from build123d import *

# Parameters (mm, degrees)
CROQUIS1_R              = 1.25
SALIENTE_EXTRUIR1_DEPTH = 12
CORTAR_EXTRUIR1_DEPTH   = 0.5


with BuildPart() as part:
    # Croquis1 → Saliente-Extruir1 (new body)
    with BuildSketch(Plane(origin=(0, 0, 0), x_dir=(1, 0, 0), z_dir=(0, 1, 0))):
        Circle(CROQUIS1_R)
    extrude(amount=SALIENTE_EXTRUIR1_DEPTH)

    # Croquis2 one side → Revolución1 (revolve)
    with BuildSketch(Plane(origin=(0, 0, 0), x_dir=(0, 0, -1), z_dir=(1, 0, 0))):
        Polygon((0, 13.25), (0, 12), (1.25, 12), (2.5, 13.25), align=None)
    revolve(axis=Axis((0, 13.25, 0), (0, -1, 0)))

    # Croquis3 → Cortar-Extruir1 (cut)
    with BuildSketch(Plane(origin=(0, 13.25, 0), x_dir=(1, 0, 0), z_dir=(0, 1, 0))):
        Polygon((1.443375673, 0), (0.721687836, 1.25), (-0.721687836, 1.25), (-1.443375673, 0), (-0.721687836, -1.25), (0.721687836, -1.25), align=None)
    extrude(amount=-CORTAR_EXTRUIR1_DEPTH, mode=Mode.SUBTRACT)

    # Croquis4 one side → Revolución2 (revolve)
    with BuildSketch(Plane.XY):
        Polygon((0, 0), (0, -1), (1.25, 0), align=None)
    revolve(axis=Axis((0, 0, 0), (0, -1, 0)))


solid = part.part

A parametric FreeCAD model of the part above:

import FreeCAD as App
import Part
import Sketcher
Q = App.Units.Quantity

doc = App.newDocument("Part")
params = doc.addObject("Spreadsheet::Sheet", "Params")
for row, (alias, value) in enumerate([
    ("sketch1_diameter", "2.5 mm"),
    ("pad1_length", "12 mm"),
    ("sketch2_height", "2.5 mm"),
    ("revolution_angle", "360 deg"),
    ("pocket1_length", "0.5 mm"),
    ("sketch4_height", "1 mm"),
    ("sketch4_width", "1.25 mm"),
    ("revolution2_angle", "360 deg"),
], start=1):
    params.set(f"A{row}", alias)
    params.set(f"B{row}", "=" + value)
    params.setAlias(f"B{row}", alias)

body = doc.addObject("PartDesign::Body", "Body")

# Sketch on XZ plane
sketch1 = body.newObject("Sketcher::SketchObject", "Sketch")
sketch1.AttachmentSupport = (doc.getObject("XZ_Plane"), [""])
sketch1.MapMode = "FlatFace"
sketch1.addGeometry(Part.Circle(App.Vector(0, 0, 0), App.Vector(0, 0, 1), 1.2), False)
sketch1.addConstraint([
    Sketcher.Constraint("Coincident", 0, 3, -1, 1),
    Sketcher.Constraint("Diameter", 0, 2.5),
])
sketch1.setExpression("Constraints[1]", "Params.sketch1_diameter")
pad1 = body.newObject("PartDesign::Pad", "Pad")
pad1.Profile = sketch1
pad1.setExpression("Length", "Params.pad1_length")
pad1.Reversed = True

# Sketch on YZ plane
sketch2 = body.newObject("Sketcher::SketchObject", "Sketch001")
sketch2.AttachmentSupport = (doc.getObject("YZ_Plane"), [""])
sketch2.MapMode = "FlatFace"
sketch2.addGeometry([
    Part.LineSegment(App.Vector(13.2, 0, 0), App.Vector(12, 0, 0)),
    Part.LineSegment(App.Vector(12, 0, 0), App.Vector(12, -1.2, 0)),
    Part.LineSegment(App.Vector(12, -1.2, 0), App.Vector(13.2, -2.5, 0)),
    Part.LineSegment(App.Vector(13.2, -2.5, 0), App.Vector(13.2, 0, 0)),
], False)
sketch2.addConstraint([
    Sketcher.Constraint("Coincident", 0, 2, 1, 1),
    Sketcher.Constraint("Coincident", 1, 2, 2, 1),
    Sketcher.Constraint("Coincident", 2, 2, 3, 1),
    Sketcher.Constraint("Coincident", 3, 2, 0, 1),
    Sketcher.Constraint("Horizontal", 0),
    Sketcher.Constraint("Vertical", 1),
    Sketcher.Constraint("Vertical", 3),
    Sketcher.Constraint("PointOnObject", 0, 2, -1),
    Sketcher.Constraint("Equal", 0, 1),
    Sketcher.Constraint("Angle", 2, Q("-45 deg")),
    Sketcher.Constraint("DistanceY", 3, 1, 3, 2, 2.5),
    Sketcher.Constraint("DistanceX", -1, 1, 0, 2, 12.0),
])
sketch2.setExpression("Constraints[10]", "Params.sketch2_height")
revolution = body.newObject("PartDesign::Revolution", "Revolution")
revolution.Profile = sketch2
revolution.ReferenceAxis = (sketch2, ["H_Axis"])
revolution.setExpression("Angle", "Params.revolution_angle")

# Sketch on XZ plane
sketch3 = body.newObject("Sketcher::SketchObject", "Sketch002")
sketch3.AttachmentSupport = (doc.getObject("XZ_Plane"), [""])
sketch3.MapMode = "FlatFace"
sketch3.AttachmentOffset = App.Placement(App.Vector(0, 0, -13.25), App.Rotation())
sketch3.addGeometry([
    Part.LineSegment(App.Vector(1.4, 0, 0), App.Vector(0.7, -1.2, 0)),  # 0
    Part.LineSegment(App.Vector(0.7, -1.2, 0), App.Vector(-0.7, -1.2, 0)),  # 1
    Part.LineSegment(App.Vector(-0.7, -1.2, 0), App.Vector(-1.4, 0, 0)),  # 2
    Part.LineSegment(App.Vector(-1.4, 0, 0), App.Vector(-0.7, 1.2, 0)),  # 3
    Part.LineSegment(App.Vector(-0.7, 1.2, 0), App.Vector(0.7, 1.2, 0)),  # 4
    Part.LineSegment(App.Vector(0.7, 1.2, 0), App.Vector(1.4, 0, 0)),  # 5
], False)
sketch3.addConstraint([
    Sketcher.Constraint("Coincident", 0, 2, 1, 1),
    Sketcher.Constraint("Coincident", 1, 2, 2, 1),
    Sketcher.Constraint("Coincident", 2, 2, 3, 1),
    Sketcher.Constraint("Coincident", 3, 2, 4, 1),
    Sketcher.Constraint("Coincident", 4, 2, 5, 1),
    Sketcher.Constraint("Coincident", 5, 2, 0, 1),
    Sketcher.Constraint("Horizontal", 1),
    Sketcher.Constraint("Horizontal", 4),
    Sketcher.Constraint("Symmetric", 0, 2, 3, 2, -1, 1),
    Sketcher.Constraint("Symmetric", 2, 2, 5, 2, -1, 1),
    Sketcher.Constraint("PointOnObject", 2, 2, -1),
    Sketcher.Constraint("Parallel", 2, 5),
    Sketcher.Constraint("Vertical", 1, 2, 3, 2),
    Sketcher.Constraint("Angle", 0, Q("-120 deg")),
    Sketcher.Constraint("DistanceY", 1, 2, 3, 2, 2.5),
    Sketcher.Constraint("DistanceX", 1, 2, 1, 1, 1.443376),
])
pocket1 = body.newObject("PartDesign::Pocket", "Pocket")
pocket1.Profile = sketch3
pocket1.setExpression("Length", "Params.pocket1_length")
pocket1.Reversed = True

# Sketch on XY plane
sketch4 = body.newObject("Sketcher::SketchObject", "Sketch003")
sketch4.AttachmentSupport = (doc.getObject("XY_Plane"), [""])
sketch4.MapMode = "FlatFace"
sketch4.addGeometry([
    Part.LineSegment(App.Vector(0, 0, 0), App.Vector(0, -1, 0)),
    Part.LineSegment(App.Vector(0, -1, 0), App.Vector(1.2, 0, 0)),
    Part.LineSegment(App.Vector(1.2, 0, 0), App.Vector(0, 0, 0)),
], False)
sketch4.addConstraint([
    Sketcher.Constraint("Coincident", 0, 2, 1, 1),
    Sketcher.Constraint("Coincident", 1, 2, 2, 1),
    Sketcher.Constraint("Coincident", 2, 2, 0, 1),
    Sketcher.Constraint("Vertical", 0),
    Sketcher.Constraint("Horizontal", 2),
    Sketcher.Constraint("Coincident", 2, 2, -1, 1),
    Sketcher.Constraint("DistanceY", 0, 2, 0, 1, 1.0),
    Sketcher.Constraint("DistanceX", 2, 2, 2, 1, 1.25),
])
sketch4.setExpression("Constraints[6]", "Params.sketch4_height")
sketch4.setExpression("Constraints[7]", "Params.sketch4_width")
revolution2 = body.newObject("PartDesign::Revolution", "Revolution001")
revolution2.Profile = sketch4
revolution2.ReferenceAxis = (sketch4, ["V_Axis"])
revolution2.setExpression("Angle", "Params.revolution2_angle")

doc.recompute()
